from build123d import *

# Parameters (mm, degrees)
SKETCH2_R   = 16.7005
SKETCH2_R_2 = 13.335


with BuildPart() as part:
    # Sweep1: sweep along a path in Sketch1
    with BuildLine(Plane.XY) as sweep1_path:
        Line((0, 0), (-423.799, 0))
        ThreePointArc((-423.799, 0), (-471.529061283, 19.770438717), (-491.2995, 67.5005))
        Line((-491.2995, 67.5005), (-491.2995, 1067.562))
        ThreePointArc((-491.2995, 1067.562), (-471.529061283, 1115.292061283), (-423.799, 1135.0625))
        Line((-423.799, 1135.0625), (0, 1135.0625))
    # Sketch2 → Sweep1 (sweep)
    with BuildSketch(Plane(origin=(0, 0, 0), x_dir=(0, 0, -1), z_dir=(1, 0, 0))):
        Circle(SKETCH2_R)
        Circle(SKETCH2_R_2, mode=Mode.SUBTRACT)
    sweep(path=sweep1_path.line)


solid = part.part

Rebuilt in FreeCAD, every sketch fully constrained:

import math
import FreeCAD as App
import Part
import Sketcher
Q = App.Units.Quantity

doc = App.newDocument("Part")
body = doc.addObject("PartDesign::Body", "Body")

sketch1 = body.newObject("Sketcher::SketchObject", "Sketch")
sketch1.AttachmentSupport = (doc.getObject("YZ_Plane"), [""])
sketch1.MapMode = "FlatFace"
sketch1.addGeometry(Part.Circle(App.Vector(0, 0, 0), App.Vector(0, 0, 1), 17), False)
sketch1.addGeometry(Part.Circle(App.Vector(0, 0, 0), App.Vector(0, 0, 1), 13), False)
sketch1.addConstraint(Sketcher.Constraint("Coincident", 0, 3, -1, 1))
sketch1.addConstraint(Sketcher.Constraint("Coincident", 1, 3, -1, 1))
sketch1.addConstraint(Sketcher.Constraint("Diameter", 1, Q("1.05 in")))
sketch1.addConstraint(Sketcher.Constraint("Diameter", 0, Q("1.315 in")))

sketch2 = body.newObject("Sketcher::SketchObject", "Sketch001")
sketch2.AttachmentSupport = (doc.getObject("XY_Plane"), [""])
sketch2.MapMode = "FlatFace"
sketch2.addGeometry(Part.LineSegment(App.Vector(0, 0, 0), App.Vector(-424, 0, 0)), False)
sketch2.addGeometry(Part.ArcOfCircle(Part.Circle(App.Vector(-424, 68, 0), App.Vector(0, 0, 1), 68), math.radians(-180), math.radians(-90)), False)
sketch2.addGeometry(Part.LineSegment(App.Vector(-491, 68, 0), App.Vector(-491, 1068, 0)), False)
sketch2.addGeometry(Part.ArcOfCircle(Part.Circle(App.Vector(-424, 1068, 0), App.Vector(0, 0, 1), 68), math.radians(90), math.radians(180)), False)
sketch2.addGeometry(Part.LineSegment(App.Vector(-424, 1135, 0), App.Vector(0, 1135, 0)), False)
sketch2.addConstraint(Sketcher.Constraint("Tangent", 0, 2, 1, 2))
sketch2.addConstraint(Sketcher.Constraint("Tangent", 1, 1, 2, 1))
sketch2.addConstraint(Sketcher.Constraint("Tangent", 2, 2, 3, 2))
sketch2.addConstraint(Sketcher.Constraint("Tangent", 3, 1, 4, 1))
sketch2.addConstraint(Sketcher.Constraint("Horizontal", 0))
sketch2.addConstraint(Sketcher.Constraint("Vertical", 2))
sketch2.addConstraint(Sketcher.Constraint("Horizontal", 4))
sketch2.addConstraint(Sketcher.Constraint("Coincident", 0, 1, -1, 1))
sketch2.addConstraint(Sketcher.Constraint("Equal", 1, 3))
sketch2.addConstraint(Sketcher.Constraint("PointOnObject", 4, 2, -2))
sketch2.addConstraint(Sketcher.Constraint("Radius", 1, Q("2.6575 in")))
sketch2.addConstraint(Sketcher.Constraint("DistanceX", 0, 2, 0, 1, Q("16.685 in")))
sketch2.addConstraint(Sketcher.Constraint("DistanceY", -1, 1, 3, 3, Q("42.03 in")))
doc.recompute()

additivepipe = body.newObject("PartDesign::AdditivePipe", "AdditivePipe")
additivepipe.Profile = sketch1
additivepipe.Spine = (sketch2, ["Edge1", "Edge2", "Edge3", "Edge4", "Edge5"])

doc.recompute()
